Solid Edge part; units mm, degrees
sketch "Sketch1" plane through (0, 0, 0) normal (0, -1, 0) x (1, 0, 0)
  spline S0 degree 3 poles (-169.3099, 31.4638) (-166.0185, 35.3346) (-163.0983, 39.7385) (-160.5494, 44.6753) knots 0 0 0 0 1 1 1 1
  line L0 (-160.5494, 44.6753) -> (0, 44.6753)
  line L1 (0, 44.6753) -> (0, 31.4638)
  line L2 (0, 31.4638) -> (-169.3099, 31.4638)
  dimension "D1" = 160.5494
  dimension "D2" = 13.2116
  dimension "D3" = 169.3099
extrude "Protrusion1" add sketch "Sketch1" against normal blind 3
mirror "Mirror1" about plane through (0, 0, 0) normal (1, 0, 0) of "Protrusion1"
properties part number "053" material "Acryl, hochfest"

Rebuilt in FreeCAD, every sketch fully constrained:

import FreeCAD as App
import Part
import Sketcher

V = App.Vector

doc = App.newDocument("Part")
params = doc.addObject("Spreadsheet::Sheet", "Params")
for row, (alias, value) in enumerate([
    ("pad1_length", "3 mm"),
], start=1):
    params.set(f"A{row}", alias)
    params.set(f"B{row}", "=" + value)
    params.setAlias(f"B{row}", alias)

body = doc.addObject("PartDesign::Body", "Body")

# Sketch on XZ plane
sketch1 = body.newObject("Sketcher::SketchObject", "Sketch")
sketch1.AttachmentSupport = (doc.getObject("XZ_Plane"), [""])
sketch1.MapMode = "FlatFace"
sketch1.addGeometry([
    Part.BSplineCurve([V(-169.3099, 31.4638, 0), V(-166.0185, 35.3346, 0), V(-163.0983, 39.7385, 0), V(-160.5494, 44.6753, 0)], [4, 4], [0, 1], False, 3, [1, 1, 1, 1], False),
    Part.LineSegment(V(-169.3099, 31.4638, 0), V(0, 31.4638, 0)),
    Part.LineSegment(V(0, 31.4638, 0), V(0, 44.6753, 0)),
    Part.LineSegment(V(0, 44.6753, 0), V(-160.5494, 44.6753, 0)),
], False)
sketch1.addConstraint([
    Sketcher.Constraint("Block", 0),
    Sketcher.Constraint("Coincident", 0, 1, 1, 1),
    Sketcher.Constraint("Coincident", 1, 2, 2, 1),
    Sketcher.Constraint("Coincident", 2, 2, 3, 1),
    Sketcher.Constraint("Coincident", 3, 2, 0, 2),
    Sketcher.Constraint("Horizontal", 1),
    Sketcher.Constraint("Vertical", 2),
    Sketcher.Constraint("Horizontal", 3),
    Sketcher.Constraint("PointOnObject", 1, 2, -2),
])
pad1 = body.newObject("PartDesign::Pad", "Pad")
pad1.Profile = sketch1
pad1.setExpression("Length", "Params.pad1_length")
pad1.Reversed = True
doc.recompute()

mirrored = body.newObject("PartDesign::Mirrored", "Mirrored")
mirrored.Originals = [pad1]
mirrored.MirrorPlane = (doc.getObject("YZ_Plane"), [""])
body.Tip = mirrored

doc.recompute()
